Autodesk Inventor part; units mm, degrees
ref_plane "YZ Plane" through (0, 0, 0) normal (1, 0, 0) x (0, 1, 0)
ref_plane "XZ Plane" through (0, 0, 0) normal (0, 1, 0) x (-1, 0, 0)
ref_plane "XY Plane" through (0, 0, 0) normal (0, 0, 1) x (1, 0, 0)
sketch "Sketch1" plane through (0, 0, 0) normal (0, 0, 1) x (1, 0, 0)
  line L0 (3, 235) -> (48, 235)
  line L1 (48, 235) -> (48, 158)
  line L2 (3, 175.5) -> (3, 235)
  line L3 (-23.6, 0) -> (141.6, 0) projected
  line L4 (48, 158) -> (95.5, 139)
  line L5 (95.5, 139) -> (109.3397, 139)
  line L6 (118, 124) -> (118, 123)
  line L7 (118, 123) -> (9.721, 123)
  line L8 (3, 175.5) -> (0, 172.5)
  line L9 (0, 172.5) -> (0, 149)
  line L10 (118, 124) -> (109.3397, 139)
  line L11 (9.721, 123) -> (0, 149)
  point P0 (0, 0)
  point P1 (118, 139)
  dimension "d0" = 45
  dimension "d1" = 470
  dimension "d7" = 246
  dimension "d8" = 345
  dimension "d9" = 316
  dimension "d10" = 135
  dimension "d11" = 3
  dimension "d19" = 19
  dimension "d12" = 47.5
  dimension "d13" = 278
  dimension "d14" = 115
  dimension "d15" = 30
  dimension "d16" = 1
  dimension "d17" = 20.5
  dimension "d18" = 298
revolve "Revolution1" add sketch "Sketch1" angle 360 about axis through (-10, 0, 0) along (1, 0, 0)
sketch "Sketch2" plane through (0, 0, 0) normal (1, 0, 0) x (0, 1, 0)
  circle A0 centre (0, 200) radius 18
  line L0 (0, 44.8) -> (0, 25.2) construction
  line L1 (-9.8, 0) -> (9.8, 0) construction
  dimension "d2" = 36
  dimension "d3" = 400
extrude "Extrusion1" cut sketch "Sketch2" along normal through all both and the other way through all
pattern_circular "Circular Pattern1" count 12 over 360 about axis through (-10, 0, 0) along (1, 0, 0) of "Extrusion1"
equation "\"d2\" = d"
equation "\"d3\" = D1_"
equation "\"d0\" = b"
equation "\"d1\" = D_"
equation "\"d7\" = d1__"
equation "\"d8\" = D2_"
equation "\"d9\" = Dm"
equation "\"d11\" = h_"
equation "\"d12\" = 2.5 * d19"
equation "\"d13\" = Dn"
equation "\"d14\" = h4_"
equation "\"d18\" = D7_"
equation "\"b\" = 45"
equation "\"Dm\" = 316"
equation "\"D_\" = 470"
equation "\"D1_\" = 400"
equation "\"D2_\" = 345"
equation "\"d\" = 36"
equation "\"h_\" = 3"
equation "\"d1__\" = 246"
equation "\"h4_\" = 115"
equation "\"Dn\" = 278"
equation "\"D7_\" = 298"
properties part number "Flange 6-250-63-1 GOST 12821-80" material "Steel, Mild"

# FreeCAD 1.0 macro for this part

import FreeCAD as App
import Part
import Sketcher
from FreeCAD import Vector
Q = App.Units.Quantity

doc = App.newDocument("Part")
params = doc.addObject("Spreadsheet::Sheet", "Params")
for row, (alias, value) in enumerate([
    ("sketch1_width", "45 mm"),
    ("sketch1_height", "1 mm"),
    ("sketch1_height2", "77 mm"),
    ("sketch1_height3", "59.5 mm"),
    ("sketch1_height4", "23.5 mm"),
    ("revolution_angle", "360 deg"),
    ("sketch2_diameter", "36 mm"),
], start=1):
    params.set(f"A{row}", alias)
    params.set(f"B{row}", "=" + value)
    params.setAlias(f"B{row}", alias)

body = doc.addObject("PartDesign::Body", "Body")

# Sketch on XY plane
sketch1 = doc.addObject("Sketcher::SketchObject", "Sketch")
body.addObject(sketch1)
sketch1.AttachmentSupport = (doc.XY_Plane, [""])
sketch1.MapMode = "FlatFace"
sketch1.addGeometry(Part.LineSegment(Vector(48, 235, 0), Vector(3, 235, 0)), False)
sketch1.addGeometry(Part.LineSegment(Vector(3, 235, 0), Vector(3, 175.5, 0)), False)
sketch1.addGeometry(Part.LineSegment(Vector(3, 175.5, 0), Vector(0, 172.5, 0)), False)
sketch1.addGeometry(Part.LineSegment(Vector(0, 172.5, 0), Vector(0, 149, 0)), False)
sketch1.addGeometry(Part.LineSegment(Vector(0, 149, 0), Vector(9.7, 123, 0)), False)
sketch1.addGeometry(Part.LineSegment(Vector(9.7, 123, 0), Vector(118, 123, 0)), False)
sketch1.addGeometry(Part.LineSegment(Vector(118, 123, 0), Vector(118, 124, 0)), False)
sketch1.addGeometry(Part.LineSegment(Vector(118, 124, 0), Vector(109.3, 139, 0)), False)
sketch1.addGeometry(Part.LineSegment(Vector(109.3, 139, 0), Vector(95.5, 139, 0)), False)
sketch1.addGeometry(Part.LineSegment(Vector(95.5, 139, 0), Vector(48, 158, 0)), False)
sketch1.addGeometry(Part.LineSegment(Vector(48, 158, 0), Vector(48, 235, 0)), False)
sketch1.addConstraint(Sketcher.Constraint("Coincident", 0, 2, 1, 1))
sketch1.addConstraint(Sketcher.Constraint("Coincident", 1, 2, 2, 1))
sketch1.addConstraint(Sketcher.Constraint("Coincident", 2, 2, 3, 1))
sketch1.addConstraint(Sketcher.Constraint("Coincident", 3, 2, 4, 1))
sketch1.addConstraint(Sketcher.Constraint("Coincident", 4, 2, 5, 1))
sketch1.addConstraint(Sketcher.Constraint("Coincident", 5, 2, 6, 1))
sketch1.addConstraint(Sketcher.Constraint("Coincident", 6, 2, 7, 1))
sketch1.addConstraint(Sketcher.Constraint("Coincident", 7, 2, 8, 1))
sketch1.addConstraint(Sketcher.Constraint("Coincident", 8, 2, 9, 1))
sketch1.addConstraint(Sketcher.Constraint("Coincident", 9, 2, 10, 1))
sketch1.addConstraint(Sketcher.Constraint("Coincident", 10, 2, 0, 1))
sketch1.addConstraint(Sketcher.Constraint("Horizontal", 0))
sketch1.addConstraint(Sketcher.Constraint("Vertical", 1))
sketch1.addConstraint(Sketcher.Constraint("Vertical", 3))
sketch1.addConstraint(Sketcher.Constraint("Horizontal", 5))
sketch1.addConstraint(Sketcher.Constraint("Vertical", 6))
sketch1.addConstraint(Sketcher.Constraint("Horizontal", 8))
sketch1.addConstraint(Sketcher.Constraint("Vertical", 10))
sketch1.addConstraint(Sketcher.Constraint("PointOnObject", 2, 2, -2))
sketch1.addConstraint(Sketcher.Constraint("DistanceX", 0, 2, 0, 1, Q("45 mm")))
sketch1.addConstraint(Sketcher.Constraint("DistanceY", 6, 1, 6, 2, Q("1 mm")))
sketch1.addConstraint(Sketcher.Constraint("Angle", 2, Q("-135 deg")))
sketch1.addConstraint(Sketcher.Constraint("DistanceX", -1, 1, 0, 2, Q("3 mm")))
sketch1.addConstraint(Sketcher.Constraint("DistanceX", 1, 2, 5, 2, Q("115 mm")))
sketch1.addConstraint(Sketcher.Constraint("DistanceY", 8, 2, 9, 2, Q("19 mm")))
sketch1.addConstraint(Sketcher.Constraint("DistanceX", 9, 2, 8, 2, Q("47.5 mm")))
sketch1.addConstraint(Sketcher.Constraint("DistanceY", 10, 1, 10, 2, Q("77 mm")))
sketch1.addConstraint(Sketcher.Constraint("Angle", 7, Q("120.0001 deg")))
sketch1.addConstraint(Sketcher.Constraint("DistanceY", 1, 2, 1, 1, Q("59.5 mm")))
sketch1.addConstraint(Sketcher.Constraint("DistanceY", 3, 2, 3, 1, Q("23.5 mm")))
sketch1.addConstraint(Sketcher.Constraint("DistanceY", -1, 1, 0, 2, Q("235 mm")))
sketch1.addConstraint(Sketcher.Constraint("DistanceY", -1, 1, 4, 2, Q("123 mm")))
sketch1.addConstraint(Sketcher.Constraint("Angle", 4, Q("-69.5 deg")))
sketch1.setExpression("Constraints[19]", "Params.sketch1_width")
sketch1.setExpression("Constraints[20]", "Params.sketch1_height")
sketch1.setExpression("Constraints[26]", "Params.sketch1_height2")
sketch1.setExpression("Constraints[28]", "Params.sketch1_height3")
sketch1.setExpression("Constraints[29]", "Params.sketch1_height4")
revolution = doc.addObject("PartDesign::Revolution", "Revolution")
body.addObject(revolution)
revolution.Profile = sketch1
revolution.ReferenceAxis = (sketch1, ["H_Axis"])
revolution.setExpression("Angle", "Params.revolution_angle")

# Sketch on YZ plane
sketch2 = doc.addObject("Sketcher::SketchObject", "Sketch001")
body.addObject(sketch2)
sketch2.AttachmentSupport = (doc.YZ_Plane, [""])
sketch2.MapMode = "FlatFace"
sketch2.addGeometry(Part.Circle(Vector(0, 200, 0), Vector(0, 0, 1), 18), False)
sketch2.addConstraint(Sketcher.Constraint("PointOnObject", 0, 3, -2))
sketch2.addConstraint(Sketcher.Constraint("Diameter", 0, Q("36 mm")))
sketch2.addConstraint(Sketcher.Constraint("DistanceY", -1, 1, 0, 3, Q("200 mm")))
sketch2.setExpression("Constraints[1]", "Params.sketch2_diameter")
pocket1 = doc.addObject("PartDesign::Pocket", "Pocket")
body.addObject(pocket1)
pocket1.Profile = sketch2
pocket1.Type = "ThroughAll"
pocket1.Reversed = True
doc.recompute()

polarpattern = doc.addObject("PartDesign::PolarPattern", "PolarPattern")
body.addObject(polarpattern)
polarpattern.Originals = [pocket1]
polarpattern.Axis = (doc.X_Axis, [""])
polarpattern.Angle = 360
polarpattern.Occurrences = 12
body.Tip = polarpattern

doc.recompute()
